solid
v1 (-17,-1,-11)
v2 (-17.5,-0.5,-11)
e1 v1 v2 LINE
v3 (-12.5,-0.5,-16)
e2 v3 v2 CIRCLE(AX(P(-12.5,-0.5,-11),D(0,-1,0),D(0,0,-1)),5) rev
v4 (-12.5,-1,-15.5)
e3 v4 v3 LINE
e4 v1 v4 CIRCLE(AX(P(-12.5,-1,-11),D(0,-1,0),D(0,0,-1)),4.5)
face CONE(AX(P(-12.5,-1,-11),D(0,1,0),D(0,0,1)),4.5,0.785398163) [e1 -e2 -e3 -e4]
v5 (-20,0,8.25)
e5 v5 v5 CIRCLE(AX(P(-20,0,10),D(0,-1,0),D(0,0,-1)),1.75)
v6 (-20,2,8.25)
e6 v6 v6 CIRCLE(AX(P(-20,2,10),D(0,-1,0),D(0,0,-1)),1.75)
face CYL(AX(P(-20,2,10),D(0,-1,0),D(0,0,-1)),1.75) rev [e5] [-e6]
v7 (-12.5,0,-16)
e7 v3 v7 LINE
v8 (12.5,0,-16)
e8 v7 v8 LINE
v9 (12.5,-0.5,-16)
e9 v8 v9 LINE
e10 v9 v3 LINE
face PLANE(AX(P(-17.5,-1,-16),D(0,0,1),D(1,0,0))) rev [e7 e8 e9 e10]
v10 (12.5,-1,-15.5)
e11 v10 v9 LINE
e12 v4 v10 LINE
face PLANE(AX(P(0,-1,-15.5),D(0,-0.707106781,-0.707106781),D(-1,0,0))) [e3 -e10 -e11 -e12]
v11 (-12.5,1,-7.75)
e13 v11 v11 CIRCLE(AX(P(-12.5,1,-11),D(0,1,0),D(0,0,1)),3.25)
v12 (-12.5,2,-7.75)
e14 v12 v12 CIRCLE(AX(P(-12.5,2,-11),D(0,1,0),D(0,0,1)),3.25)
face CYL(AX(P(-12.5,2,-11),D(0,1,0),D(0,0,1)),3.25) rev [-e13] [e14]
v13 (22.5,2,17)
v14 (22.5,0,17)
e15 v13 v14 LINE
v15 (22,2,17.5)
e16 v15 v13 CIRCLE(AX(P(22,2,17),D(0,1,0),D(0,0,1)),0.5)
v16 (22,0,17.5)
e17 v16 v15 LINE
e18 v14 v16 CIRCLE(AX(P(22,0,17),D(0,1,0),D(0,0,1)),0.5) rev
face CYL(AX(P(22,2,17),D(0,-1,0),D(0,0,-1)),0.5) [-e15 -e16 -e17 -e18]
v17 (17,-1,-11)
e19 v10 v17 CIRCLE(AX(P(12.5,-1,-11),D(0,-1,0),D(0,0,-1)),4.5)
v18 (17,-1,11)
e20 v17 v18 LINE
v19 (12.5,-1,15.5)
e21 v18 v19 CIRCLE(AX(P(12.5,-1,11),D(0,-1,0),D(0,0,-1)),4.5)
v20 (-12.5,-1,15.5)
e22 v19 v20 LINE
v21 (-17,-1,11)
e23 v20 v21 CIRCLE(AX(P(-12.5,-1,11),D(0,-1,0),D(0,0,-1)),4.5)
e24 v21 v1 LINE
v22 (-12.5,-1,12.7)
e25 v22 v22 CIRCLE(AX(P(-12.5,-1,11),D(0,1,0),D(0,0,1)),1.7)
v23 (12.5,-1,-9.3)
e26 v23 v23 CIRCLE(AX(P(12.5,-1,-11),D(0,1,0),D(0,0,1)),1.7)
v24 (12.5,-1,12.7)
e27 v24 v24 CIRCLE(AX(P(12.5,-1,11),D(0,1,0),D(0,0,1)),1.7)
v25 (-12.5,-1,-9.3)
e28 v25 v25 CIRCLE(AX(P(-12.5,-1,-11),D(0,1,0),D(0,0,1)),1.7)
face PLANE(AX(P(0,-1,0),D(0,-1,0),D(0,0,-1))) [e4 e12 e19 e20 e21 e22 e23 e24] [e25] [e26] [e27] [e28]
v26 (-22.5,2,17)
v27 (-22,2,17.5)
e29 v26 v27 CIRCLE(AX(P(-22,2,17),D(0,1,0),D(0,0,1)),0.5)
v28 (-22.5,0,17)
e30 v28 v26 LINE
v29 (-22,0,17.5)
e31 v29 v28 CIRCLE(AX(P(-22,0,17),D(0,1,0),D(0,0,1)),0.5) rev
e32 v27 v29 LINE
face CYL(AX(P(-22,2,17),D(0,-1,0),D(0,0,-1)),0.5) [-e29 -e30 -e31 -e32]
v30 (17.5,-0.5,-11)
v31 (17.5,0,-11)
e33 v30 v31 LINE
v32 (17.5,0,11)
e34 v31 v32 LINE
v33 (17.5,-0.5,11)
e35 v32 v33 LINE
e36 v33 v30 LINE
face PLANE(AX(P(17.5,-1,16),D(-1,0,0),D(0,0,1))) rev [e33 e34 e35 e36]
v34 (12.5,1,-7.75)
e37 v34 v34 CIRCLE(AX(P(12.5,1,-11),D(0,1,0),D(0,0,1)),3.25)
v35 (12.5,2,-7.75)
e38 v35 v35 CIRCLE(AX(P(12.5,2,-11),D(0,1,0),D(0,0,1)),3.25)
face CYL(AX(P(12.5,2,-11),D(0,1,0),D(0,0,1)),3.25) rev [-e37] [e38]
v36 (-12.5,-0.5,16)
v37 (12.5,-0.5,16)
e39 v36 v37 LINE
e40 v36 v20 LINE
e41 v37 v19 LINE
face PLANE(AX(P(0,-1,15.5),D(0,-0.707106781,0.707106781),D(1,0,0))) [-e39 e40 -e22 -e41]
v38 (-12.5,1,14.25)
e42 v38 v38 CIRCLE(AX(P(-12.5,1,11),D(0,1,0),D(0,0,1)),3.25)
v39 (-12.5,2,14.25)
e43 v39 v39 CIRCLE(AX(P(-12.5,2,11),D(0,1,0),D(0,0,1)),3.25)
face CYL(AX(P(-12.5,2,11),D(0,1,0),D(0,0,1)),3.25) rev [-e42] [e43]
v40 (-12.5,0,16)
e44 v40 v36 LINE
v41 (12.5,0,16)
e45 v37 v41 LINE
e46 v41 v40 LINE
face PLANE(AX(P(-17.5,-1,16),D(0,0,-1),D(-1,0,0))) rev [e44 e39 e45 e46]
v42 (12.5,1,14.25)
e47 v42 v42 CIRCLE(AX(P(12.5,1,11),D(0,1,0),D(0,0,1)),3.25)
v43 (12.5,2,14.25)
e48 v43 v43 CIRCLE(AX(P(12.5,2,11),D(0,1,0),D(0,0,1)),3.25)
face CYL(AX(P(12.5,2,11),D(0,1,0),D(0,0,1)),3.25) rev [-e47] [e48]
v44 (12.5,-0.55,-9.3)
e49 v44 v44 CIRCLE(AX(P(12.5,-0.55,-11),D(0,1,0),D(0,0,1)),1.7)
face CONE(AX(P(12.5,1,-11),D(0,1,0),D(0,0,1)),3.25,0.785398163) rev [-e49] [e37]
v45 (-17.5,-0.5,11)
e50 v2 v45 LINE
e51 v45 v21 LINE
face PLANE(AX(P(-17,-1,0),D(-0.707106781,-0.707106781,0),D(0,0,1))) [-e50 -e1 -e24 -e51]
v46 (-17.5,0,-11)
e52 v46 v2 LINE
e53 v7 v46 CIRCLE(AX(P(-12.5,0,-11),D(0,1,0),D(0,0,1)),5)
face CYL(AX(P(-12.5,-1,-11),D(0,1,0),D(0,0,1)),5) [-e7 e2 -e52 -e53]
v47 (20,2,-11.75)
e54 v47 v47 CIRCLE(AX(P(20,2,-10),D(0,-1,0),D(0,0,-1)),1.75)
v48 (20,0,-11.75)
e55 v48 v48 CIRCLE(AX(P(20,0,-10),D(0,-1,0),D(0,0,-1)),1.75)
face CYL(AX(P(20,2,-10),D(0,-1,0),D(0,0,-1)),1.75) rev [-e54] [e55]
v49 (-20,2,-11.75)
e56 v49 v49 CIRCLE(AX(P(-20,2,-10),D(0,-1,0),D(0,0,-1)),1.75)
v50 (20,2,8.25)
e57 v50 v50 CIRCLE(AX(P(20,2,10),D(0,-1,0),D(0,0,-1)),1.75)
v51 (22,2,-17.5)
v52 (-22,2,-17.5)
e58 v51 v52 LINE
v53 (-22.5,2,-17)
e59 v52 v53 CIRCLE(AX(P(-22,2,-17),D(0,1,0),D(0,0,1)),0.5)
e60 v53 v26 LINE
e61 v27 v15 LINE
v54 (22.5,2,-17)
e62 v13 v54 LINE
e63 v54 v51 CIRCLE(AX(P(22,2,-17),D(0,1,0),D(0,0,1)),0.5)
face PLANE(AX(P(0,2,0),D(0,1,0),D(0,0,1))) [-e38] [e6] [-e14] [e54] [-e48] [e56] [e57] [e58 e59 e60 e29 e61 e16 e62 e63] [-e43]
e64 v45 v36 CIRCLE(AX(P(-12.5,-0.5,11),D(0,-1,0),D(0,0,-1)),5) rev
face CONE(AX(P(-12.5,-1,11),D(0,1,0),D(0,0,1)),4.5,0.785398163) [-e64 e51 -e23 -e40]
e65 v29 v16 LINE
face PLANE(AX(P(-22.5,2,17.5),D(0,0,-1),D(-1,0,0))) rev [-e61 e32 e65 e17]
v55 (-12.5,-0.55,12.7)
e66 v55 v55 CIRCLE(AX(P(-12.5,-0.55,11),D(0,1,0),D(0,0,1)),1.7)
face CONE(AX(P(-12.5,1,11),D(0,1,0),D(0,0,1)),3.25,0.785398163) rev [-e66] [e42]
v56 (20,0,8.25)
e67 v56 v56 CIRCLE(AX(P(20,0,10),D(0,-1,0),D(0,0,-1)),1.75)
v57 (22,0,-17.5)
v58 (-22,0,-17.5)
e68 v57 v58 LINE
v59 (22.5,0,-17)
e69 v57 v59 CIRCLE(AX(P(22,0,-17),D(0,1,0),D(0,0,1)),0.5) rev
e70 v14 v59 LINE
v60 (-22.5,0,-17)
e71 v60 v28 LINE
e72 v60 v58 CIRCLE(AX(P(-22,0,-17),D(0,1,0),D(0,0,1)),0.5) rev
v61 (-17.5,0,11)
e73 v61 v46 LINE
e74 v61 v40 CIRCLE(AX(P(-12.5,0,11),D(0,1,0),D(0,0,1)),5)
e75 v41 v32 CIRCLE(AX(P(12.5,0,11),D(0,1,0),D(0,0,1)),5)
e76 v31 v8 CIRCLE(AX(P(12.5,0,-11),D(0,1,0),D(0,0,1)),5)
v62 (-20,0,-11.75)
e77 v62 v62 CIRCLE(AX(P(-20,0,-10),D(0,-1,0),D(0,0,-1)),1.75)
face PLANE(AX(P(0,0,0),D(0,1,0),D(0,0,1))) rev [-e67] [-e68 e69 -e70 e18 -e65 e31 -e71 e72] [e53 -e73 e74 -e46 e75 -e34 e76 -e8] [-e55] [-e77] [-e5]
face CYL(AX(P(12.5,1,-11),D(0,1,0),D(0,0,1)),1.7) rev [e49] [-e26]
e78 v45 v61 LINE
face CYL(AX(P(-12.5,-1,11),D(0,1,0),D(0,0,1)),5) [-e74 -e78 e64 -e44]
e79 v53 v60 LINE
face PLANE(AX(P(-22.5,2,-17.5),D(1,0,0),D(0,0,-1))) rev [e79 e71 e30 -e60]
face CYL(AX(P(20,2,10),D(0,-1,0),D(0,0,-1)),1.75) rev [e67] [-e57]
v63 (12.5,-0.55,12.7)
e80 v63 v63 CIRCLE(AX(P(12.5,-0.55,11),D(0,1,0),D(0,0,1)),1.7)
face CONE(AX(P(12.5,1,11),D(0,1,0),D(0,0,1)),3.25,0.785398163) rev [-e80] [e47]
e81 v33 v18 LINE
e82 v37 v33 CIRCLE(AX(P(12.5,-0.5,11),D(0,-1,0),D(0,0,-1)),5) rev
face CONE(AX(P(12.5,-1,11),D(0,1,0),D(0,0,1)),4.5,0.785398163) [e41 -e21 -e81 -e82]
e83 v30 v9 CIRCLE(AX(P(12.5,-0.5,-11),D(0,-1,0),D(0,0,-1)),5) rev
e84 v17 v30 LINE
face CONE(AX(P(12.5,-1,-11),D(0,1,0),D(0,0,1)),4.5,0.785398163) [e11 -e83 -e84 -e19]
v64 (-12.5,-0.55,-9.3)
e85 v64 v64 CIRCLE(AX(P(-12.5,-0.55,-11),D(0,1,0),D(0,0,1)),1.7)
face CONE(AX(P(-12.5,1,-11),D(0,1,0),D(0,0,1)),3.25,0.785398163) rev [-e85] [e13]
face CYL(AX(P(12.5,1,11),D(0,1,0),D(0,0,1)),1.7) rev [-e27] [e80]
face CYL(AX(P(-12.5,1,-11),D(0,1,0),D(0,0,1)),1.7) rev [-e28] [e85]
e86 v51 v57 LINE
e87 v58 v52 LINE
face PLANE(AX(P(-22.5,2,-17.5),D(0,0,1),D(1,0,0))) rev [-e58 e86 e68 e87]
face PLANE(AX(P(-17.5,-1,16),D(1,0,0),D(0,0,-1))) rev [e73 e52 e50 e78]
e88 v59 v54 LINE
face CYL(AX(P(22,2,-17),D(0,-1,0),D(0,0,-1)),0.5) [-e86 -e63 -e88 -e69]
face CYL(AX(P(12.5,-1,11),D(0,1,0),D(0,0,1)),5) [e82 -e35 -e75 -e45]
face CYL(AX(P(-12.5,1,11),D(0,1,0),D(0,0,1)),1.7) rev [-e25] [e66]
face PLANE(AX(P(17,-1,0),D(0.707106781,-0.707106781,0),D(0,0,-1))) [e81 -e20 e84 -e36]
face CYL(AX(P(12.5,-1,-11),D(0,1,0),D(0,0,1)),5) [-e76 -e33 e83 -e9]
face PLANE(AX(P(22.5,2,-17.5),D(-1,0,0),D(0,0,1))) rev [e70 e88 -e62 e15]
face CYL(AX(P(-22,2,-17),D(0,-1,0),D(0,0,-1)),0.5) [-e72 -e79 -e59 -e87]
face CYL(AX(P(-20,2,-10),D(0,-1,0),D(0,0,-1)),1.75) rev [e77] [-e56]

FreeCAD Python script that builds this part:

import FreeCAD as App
import Part
import Sketcher

V = App.Vector
Q = App.Units.Quantity


def edges_at(feature, points):
    """Names of the edges that pass closest to the given points."""
    edges = feature.Shape.Edges
    near = lambda p: min(range(len(edges)), key=lambda i: edges[i].distToShape(Part.Vertex(*p))[0])
    return sorted({f"Edge{near(p) + 1}" for p in points})

doc = App.newDocument("Part")
body = doc.addObject("PartDesign::Body", "Body")

# Sketch on XZ plane
sketch1 = body.newObject("Sketcher::SketchObject", "Sketch")
sketch1.AttachmentSupport = (doc.getObject("XZ_Plane"), [""])
sketch1.MapMode = "FlatFace"
sketch1.addGeometry(Part.LineSegment(V(-22, -18, 0), V(-22, 18, 0)), False)
sketch1.addGeometry(Part.LineSegment(V(-22, 18, 0), V(22, 18, 0)), False)
sketch1.addGeometry(Part.LineSegment(V(22, 18, 0), V(22, -18, 0)), False)
sketch1.addGeometry(Part.LineSegment(V(22, -18, 0), V(-22, -18, 0)), False)
sketch1.addConstraint(Sketcher.Constraint("Coincident", 0, 2, 1, 1))
sketch1.addConstraint(Sketcher.Constraint("Coincident", 1, 2, 2, 1))
sketch1.addConstraint(Sketcher.Constraint("Coincident", 2, 2, 3, 1))
sketch1.addConstraint(Sketcher.Constraint("Coincident", 3, 2, 0, 1))
sketch1.addConstraint(Sketcher.Constraint("Vertical", 0))
sketch1.addConstraint(Sketcher.Constraint("Horizontal", 1))
sketch1.addConstraint(Sketcher.Constraint("Vertical", 2))
sketch1.addConstraint(Sketcher.Constraint("Horizontal", 3))
sketch1.addConstraint(Sketcher.Constraint("Symmetric", 0, 2, 2, 2, -1, 1))
sketch1.addConstraint(Sketcher.Constraint("DistanceX", 1, 1, 1, 2, 45.0))
sketch1.addConstraint(Sketcher.Constraint("DistanceY", 0, 1, 0, 2, 35.0))
pad1 = body.newObject("PartDesign::Pad", "Pad")
pad1.Profile = sketch1
pad1.Length = 2
pad1.Reversed = True

# Sketch on XZ plane
sketch2 = body.newObject("Sketcher::SketchObject", "Sketch001")
sketch2.AttachmentSupport = (doc.getObject("XZ_Plane"), [""])
sketch2.MapMode = "FlatFace"
sketch2.addGeometry(Part.LineSegment(V(-18, 16, 0), V(-18, -16, 0)), False)
sketch2.addGeometry(Part.LineSegment(V(-18, -16, 0), V(18, -16, 0)), False)
sketch2.addGeometry(Part.LineSegment(V(18, -16, 0), V(18, 16, 0)), False)
sketch2.addGeometry(Part.LineSegment(V(18, 16, 0), V(-18, 16, 0)), False)
sketch2.addConstraint(Sketcher.Constraint("Coincident", 0, 2, 1, 1))
sketch2.addConstraint(Sketcher.Constraint("Coincident", 1, 2, 2, 1))
sketch2.addConstraint(Sketcher.Constraint("Coincident", 2, 2, 3, 1))
sketch2.addConstraint(Sketcher.Constraint("Coincident", 3, 2, 0, 1))
sketch2.addConstraint(Sketcher.Constraint("Vertical", 0))
sketch2.addConstraint(Sketcher.Constraint("Horizontal", 1))
sketch2.addConstraint(Sketcher.Constraint("Vertical", 2))
sketch2.addConstraint(Sketcher.Constraint("Horizontal", 3))
sketch2.addConstraint(Sketcher.Constraint("Symmetric", 0, 2, 2, 2, -1, 1))
sketch2.addConstraint(Sketcher.Constraint("DistanceX", 1, 1, 1, 2, 35.0))
sketch2.addConstraint(Sketcher.Constraint("DistanceY", 0, 2, 0, 1, 32.0))
pad2 = body.newObject("PartDesign::Pad", "Pad001")
pad2.Profile = sketch2
pad2.Length = 1
doc.recompute()

fillet = body.newObject("PartDesign::Fillet", "Fillet")
fillet.Base = (pad2, edges_at(pad2, [
    (17.5, -0.5, -16),
    (17.5, -0.5, 16),
    (-17.5, -0.5, 16),
    (-17.5, -0.5, -16),
]))
fillet.Radius = 5
doc.recompute()

fillet2 = body.newObject("PartDesign::Fillet", "Fillet001")
fillet2.Base = (fillet, edges_at(fillet, [
    (22.5, 1, 17.5),
    (-22.5, 1, 17.5),
    (-22.5, 1, -17.5),
    (22.5, 1, -17.5),
]))
fillet2.Radius = 0.5
doc.recompute()

chamfer = body.newObject("PartDesign::Chamfer", "Chamfer")
chamfer.Base = (fillet2, edges_at(fillet2, [
    (0, -1, 16),
    (17.5, -1, 0),
    (-17.5, -1, 0),
    (0, -1, -16),
    (-16.036, -1, 14.536),
    (16.036, -1, -14.536),
    (-16.036, -1, -14.536),
    (16.036, -1, 14.536),
]))
chamfer.Size = 0.5

# Sketch on XZ plane
sketch3 = body.newObject("Sketcher::SketchObject", "Sketch002")
sketch3.AttachmentSupport = (doc.getObject("XZ_Plane"), [""])
sketch3.MapMode = "FlatFace"
sketch3.addGeometry(Part.Circle(V(-20, 10, 0), V(0, 0, 1), 1.8), False)
sketch3.addGeometry(Part.Circle(V(20, 10, 0), V(0, 0, 1), 1.8), False)
sketch3.addGeometry(Part.Circle(V(20, -10, 0), V(0, 0, 1), 1.8), False)
sketch3.addGeometry(Part.Circle(V(-20, -10, 0), V(0, 0, 1), 1.8), False)
sketch3.addConstraint(Sketcher.Constraint("Equal", 0, 1))
sketch3.addConstraint(Sketcher.Constraint("Equal", 1, 2))
sketch3.addConstraint(Sketcher.Constraint("Equal", 2, 3))
sketch3.addConstraint(Sketcher.Constraint("Symmetric", 0, 3, 2, 3, -1, 1))
sketch3.addConstraint(Sketcher.Constraint("Symmetric", 1, 3, 3, 3, -1, 1))
sketch3.addConstraint(Sketcher.Constraint("Symmetric", 0, 3, 1, 3, -2))
sketch3.addConstraint(Sketcher.Constraint("Diameter", 0, 3.5))
sketch3.addConstraint(Sketcher.Constraint("DistanceX", 0, 3, -1, 1, 20.0))
sketch3.addConstraint(Sketcher.Constraint("DistanceY", -1, 1, 0, 3, 10.0))
pocket1 = body.newObject("PartDesign::Pocket", "Pocket")
pocket1.Profile = sketch3
pocket1.Type = "ThroughAll"

# Sketch on XZ plane
sketch4 = body.newObject("Sketcher::SketchObject", "Sketch003")
sketch4.AttachmentSupport = (doc.getObject("XZ_Plane"), [""])
sketch4.MapMode = "FlatFace"
sketch4.AttachmentOffset = App.Placement(V(0, 0, -2), App.Rotation())
sketch4.addGeometry(Part.Circle(V(-12.5, 11, 0), V(0, 0, 1), 3.2), False)
sketch4.addGeometry(Part.Circle(V(12.5, -11, 0), V(0, 0, 1), 3.2), False)
sketch4.addGeometry(Part.Circle(V(-12.5, -11, 0), V(0, 0, 1), 3.2), False)
sketch4.addGeometry(Part.Circle(V(12.5, 11, 0), V(0, 0, 1), 3.2), False)
sketch4.addConstraint(Sketcher.Constraint("Equal", 0, 1))
sketch4.addConstraint(Sketcher.Constraint("Equal", 1, 2))
sketch4.addConstraint(Sketcher.Constraint("Equal", 2, 3))
sketch4.addConstraint(Sketcher.Constraint("Symmetric", 0, 3, 1, 3, -1, 1))
sketch4.addConstraint(Sketcher.Constraint("Symmetric", 2, 3, 3, 3, -1, 1))
sketch4.addConstraint(Sketcher.Constraint("Symmetric", 1, 3, 2, 3, -2))
sketch4.addConstraint(Sketcher.Constraint("Diameter", 0, 6.5))
sketch4.addConstraint(Sketcher.Constraint("DistanceY", -1, 1, 0, 3, 11.0))
sketch4.addConstraint(Sketcher.Constraint("DistanceX", 0, 3, 1, 3, 25.0))
doc.recompute()
hole = body.newObject("PartDesign::Hole", "Hole")
hole.Profile = sketch4
hole.ThreadType = "None"
hole.Diameter = 6.5
hole.DepthType = "Dimension"
hole.Depth = 1
hole.DrillPoint = "Flat"
hole.Reversed = True

# Sketch on YZ plane
sketch5 = body.newObject("Sketcher::SketchObject", "Sketch004")
sketch5.AttachmentSupport = (doc.getObject("YZ_Plane"), [""])
sketch5.MapMode = "FlatFace"
sketch5.AttachmentOffset = App.Placement(V(0, 0, -12.5), App.Rotation())
sketch5.addGeometry(Part.LineSegment(V(-1, -11, 0), V(1, -11, 0)), False)
sketch5.addGeometry(Part.LineSegment(V(1, -11, 0), V(1, -7.75, 0)), False)
sketch5.addGeometry(Part.LineSegment(V(1, -7.75, 0), V(-0.55, -9.3, 0)), False)
sketch5.addGeometry(Part.LineSegment(V(-0.55, -9.3, 0), V(-1, -9.3, 0)), False)
sketch5.addGeometry(Part.LineSegment(V(-1, -9.3, 0), V(-1, -11, 0)), False)
sketch5.addGeometry(Part.LineSegment(V(1, -11, 0), V(-1, -11, 0)), True)  # axis
sketch5.addConstraint(Sketcher.Constraint("Coincident", 0, 2, 1, 1))
sketch5.addConstraint(Sketcher.Constraint("Coincident", 1, 2, 2, 1))
sketch5.addConstraint(Sketcher.Constraint("Coincident", 2, 2, 3, 1))
sketch5.addConstraint(Sketcher.Constraint("Coincident", 3, 2, 4, 1))
sketch5.addConstraint(Sketcher.Constraint("Coincident", 4, 2, 0, 1))
sketch5.addConstraint(Sketcher.Constraint("Horizontal", 0))
sketch5.addConstraint(Sketcher.Constraint("Vertical", 1))
sketch5.addConstraint(Sketcher.Constraint("Horizontal", 3))
sketch5.addConstraint(Sketcher.Constraint("Vertical", 4))
sketch5.addConstraint(Sketcher.Constraint("Horizontal", 5))
sketch5.addConstraint(Sketcher.Constraint("Coincident", 5, 1, 0, 2))
sketch5.addConstraint(Sketcher.Constraint("Vertical", 3, 2, 5, 2))
sketch5.addConstraint(Sketcher.Constraint("DistanceX", 0, 1, 0, 2, 2.0))
sketch5.addConstraint(Sketcher.Constraint("Angle", 2, Q("-135 deg")))
sketch5.addConstraint(Sketcher.Constraint("DistanceY", 4, 2, 4, 1, 1.7))
sketch5.addConstraint(Sketcher.Constraint("DistanceX", -1, 1, 0, 2, 1.0))
sketch5.addConstraint(Sketcher.Constraint("DistanceY", 0, 2, -1, 1, 11.0))
sketch5.addConstraint(Sketcher.Constraint("DistanceX", 3, 2, 3, 1, 0.45))
groove = body.newObject("PartDesign::Groove", "Groove")
groove.Profile = sketch5
groove.ReferenceAxis = (sketch5, ["Axis0"])
groove.Angle = 360
doc.recompute()

datumline = body.newObject("PartDesign::Line", "DatumLine")
datumline.Placement = App.Placement(V(0, 0, 0), App.Rotation(V(0, 0, 1), V(0.750713517, 0, 0.660627895)))
linearpattern = body.newObject("PartDesign::LinearPattern", "LinearPattern")
linearpattern.Originals = [groove]
linearpattern.Direction = (datumline, [""])
linearpattern.Mode = "offset"
linearpattern.Offset = 33.301652
linearpattern.Occurrences = 2
body.Tip = linearpattern
doc.recompute()

linearpattern2 = body.newObject("PartDesign::LinearPattern", "LinearPattern001")
linearpattern2.Originals = [groove]
linearpattern2.Direction = (doc.getObject("Z_Axis"), [""])
linearpattern2.Mode = "offset"
linearpattern2.Offset = 22
linearpattern2.Occurrences = 2
body.Tip = linearpattern2
doc.recompute()

linearpattern3 = body.newObject("PartDesign::LinearPattern", "LinearPattern002")
linearpattern3.Originals = [groove]
linearpattern3.Direction = (doc.getObject("X_Axis"), [""])
linearpattern3.Mode = "offset"
linearpattern3.Offset = 25
linearpattern3.Occurrences = 2
body.Tip = linearpattern3

doc.recompute()
